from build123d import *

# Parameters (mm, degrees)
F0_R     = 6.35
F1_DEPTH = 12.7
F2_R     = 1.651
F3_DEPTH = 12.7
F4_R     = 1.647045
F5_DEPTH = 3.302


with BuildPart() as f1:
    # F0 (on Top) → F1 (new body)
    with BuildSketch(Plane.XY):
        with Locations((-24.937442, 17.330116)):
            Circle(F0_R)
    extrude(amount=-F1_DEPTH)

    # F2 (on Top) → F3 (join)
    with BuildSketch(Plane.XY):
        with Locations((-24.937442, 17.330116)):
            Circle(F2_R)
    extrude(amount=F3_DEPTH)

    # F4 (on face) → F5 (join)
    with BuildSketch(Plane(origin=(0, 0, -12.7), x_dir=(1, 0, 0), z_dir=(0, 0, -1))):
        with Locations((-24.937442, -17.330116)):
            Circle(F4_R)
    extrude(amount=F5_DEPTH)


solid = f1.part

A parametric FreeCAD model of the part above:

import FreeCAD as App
import Part
import Sketcher

V = App.Vector
Q = App.Units.Quantity

doc = App.newDocument("Part")
params = doc.addObject("Spreadsheet::Sheet", "Params")
for row, (alias, value) in enumerate([
    ("sketch1_diameter", "0.5 in"),
    ("pad1_length", "0.5 in"),
    ("sketch2_diameter", "0.13 in"),
    ("pad2_length", "0.5 in"),
    ("pad3_length", "0.13 in"),
], start=1):
    params.set(f"A{row}", alias)
    params.set(f"B{row}", "=" + value)
    params.setAlias(f"B{row}", alias)

body = doc.addObject("PartDesign::Body", "Body")

sketch1 = body.newObject("Sketcher::SketchObject", "Sketch")
sketch1.AttachmentSupport = (doc.getObject("XY_Plane"), [""])
sketch1.MapMode = "FlatFace"
sketch1.addGeometry(Part.Circle(V(-24.937442, 17.330116, 0), V(0, 0, 1), 6.35), False)
sketch1.addConstraint(Sketcher.Constraint("Diameter", 0, Q("0.5 in")))
sketch1.addConstraint(Sketcher.Constraint("DistanceX", 0, 3, -1, 1, 24.937442))
sketch1.addConstraint(Sketcher.Constraint("DistanceY", -1, 1, 0, 3, 17.330116))
sketch1.setExpression("Constraints[0]", "Params.sketch1_diameter")
pad1 = body.newObject("PartDesign::Pad", "Pad")
pad1.Profile = sketch1
pad1.setExpression("Length", "Params.pad1_length")
pad1.Reversed = True

sketch2 = body.newObject("Sketcher::SketchObject", "Sketch001")
sketch2.AttachmentSupport = (doc.getObject("XY_Plane"), [""])
sketch2.MapMode = "FlatFace"
sketch2.addGeometry(Part.Circle(V(-24.937442, 17.330116, 0), V(0, 0, 1), 1.651), False)
sketch2.addConstraint(Sketcher.Constraint("Diameter", 0, Q("0.13 in")))
sketch2.addConstraint(Sketcher.Constraint("DistanceX", 0, 3, -1, 1, 24.937442))
sketch2.addConstraint(Sketcher.Constraint("DistanceY", -1, 1, 0, 3, 17.330116))
sketch2.setExpression("Constraints[0]", "Params.sketch2_diameter")
pad2 = body.newObject("PartDesign::Pad", "Pad001")
pad2.Profile = sketch2
pad2.setExpression("Length", "Params.pad2_length")

sketch3 = body.newObject("Sketcher::SketchObject", "Sketch002")
sketch3.AttachmentSupport = (doc.getObject("XY_Plane"), [""])
sketch3.MapMode = "FlatFace"
sketch3.AttachmentOffset = App.Placement(V(0, 0, -0.5 * 25.4), App.Rotation())
sketch3.addGeometry(Part.Circle(V(-24.937442, 17.330116, 0), V(0, 0, 1), 1.647045), False)
sketch3.addConstraint(Sketcher.Constraint("Diameter", 0, 3.29409))
sketch3.addConstraint(Sketcher.Constraint("DistanceX", 0, 3, -1, 1, 24.937442))
sketch3.addConstraint(Sketcher.Constraint("DistanceY", -1, 1, 0, 3, 17.330116))
pad3 = body.newObject("PartDesign::Pad", "Pad002")
pad3.Profile = sketch3
pad3.setExpression("Length", "Params.pad3_length")
pad3.Reversed = True

doc.recompute()
